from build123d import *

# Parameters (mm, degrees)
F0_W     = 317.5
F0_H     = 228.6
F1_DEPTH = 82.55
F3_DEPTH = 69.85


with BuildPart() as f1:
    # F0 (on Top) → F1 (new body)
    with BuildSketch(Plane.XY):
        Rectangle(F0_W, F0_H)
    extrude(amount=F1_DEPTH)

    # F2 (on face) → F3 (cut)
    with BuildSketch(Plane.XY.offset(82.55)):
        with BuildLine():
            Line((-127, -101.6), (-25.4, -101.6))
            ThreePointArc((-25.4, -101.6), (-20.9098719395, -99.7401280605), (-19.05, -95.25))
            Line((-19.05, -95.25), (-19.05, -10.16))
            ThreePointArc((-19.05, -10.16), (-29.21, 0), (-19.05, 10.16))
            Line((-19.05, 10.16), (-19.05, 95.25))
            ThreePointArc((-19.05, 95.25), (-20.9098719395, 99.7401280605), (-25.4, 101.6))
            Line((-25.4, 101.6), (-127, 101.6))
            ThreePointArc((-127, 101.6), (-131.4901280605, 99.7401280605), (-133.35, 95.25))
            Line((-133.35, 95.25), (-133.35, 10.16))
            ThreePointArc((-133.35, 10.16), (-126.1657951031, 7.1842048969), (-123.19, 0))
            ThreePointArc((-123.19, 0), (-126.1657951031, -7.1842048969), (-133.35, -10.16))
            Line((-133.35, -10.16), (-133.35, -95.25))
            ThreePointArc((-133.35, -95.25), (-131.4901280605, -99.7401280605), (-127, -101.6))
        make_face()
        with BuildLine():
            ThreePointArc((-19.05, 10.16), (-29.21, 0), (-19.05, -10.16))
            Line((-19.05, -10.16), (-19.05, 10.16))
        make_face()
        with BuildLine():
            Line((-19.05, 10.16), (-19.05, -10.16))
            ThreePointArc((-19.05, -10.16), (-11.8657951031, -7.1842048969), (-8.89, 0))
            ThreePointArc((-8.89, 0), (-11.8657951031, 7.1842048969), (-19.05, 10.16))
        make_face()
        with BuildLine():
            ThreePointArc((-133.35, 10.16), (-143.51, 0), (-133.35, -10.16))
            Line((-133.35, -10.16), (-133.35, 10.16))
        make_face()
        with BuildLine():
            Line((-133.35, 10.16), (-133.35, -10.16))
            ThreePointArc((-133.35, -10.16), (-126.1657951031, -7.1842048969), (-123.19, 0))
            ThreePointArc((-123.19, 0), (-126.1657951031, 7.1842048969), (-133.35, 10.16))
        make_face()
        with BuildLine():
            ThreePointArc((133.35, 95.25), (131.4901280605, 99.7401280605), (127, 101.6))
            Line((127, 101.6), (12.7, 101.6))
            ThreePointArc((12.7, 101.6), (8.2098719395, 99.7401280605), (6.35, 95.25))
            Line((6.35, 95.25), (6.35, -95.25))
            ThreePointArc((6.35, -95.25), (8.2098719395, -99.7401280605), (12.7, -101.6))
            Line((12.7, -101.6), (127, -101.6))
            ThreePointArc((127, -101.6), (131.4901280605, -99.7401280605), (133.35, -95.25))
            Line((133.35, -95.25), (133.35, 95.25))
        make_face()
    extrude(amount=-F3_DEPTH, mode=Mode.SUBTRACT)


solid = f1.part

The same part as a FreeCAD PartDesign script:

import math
import FreeCAD as App
import Part
import Sketcher
from FreeCAD import Vector
Q = App.Units.Quantity

doc = App.newDocument("Part")
body = doc.addObject("PartDesign::Body", "Body")

# Sketch on XY plane
sketch1 = doc.addObject("Sketcher::SketchObject", "Sketch")
body.addObject(sketch1)
sketch1.AttachmentSupport = (doc.XY_Plane, [""])
sketch1.MapMode = "FlatFace"
sketch1.addGeometry(Part.LineSegment(Vector(-158.75, 114.3, 0), Vector(-158.75, -114.3, 0)), False)
sketch1.addGeometry(Part.LineSegment(Vector(-158.75, -114.3, 0), Vector(158.75, -114.3, 0)), False)
sketch1.addGeometry(Part.LineSegment(Vector(158.75, -114.3, 0), Vector(158.75, 114.3, 0)), False)
sketch1.addGeometry(Part.LineSegment(Vector(158.75, 114.3, 0), Vector(-158.75, 114.3, 0)), False)
sketch1.addConstraint(Sketcher.Constraint("Coincident", 0, 2, 1, 1))
sketch1.addConstraint(Sketcher.Constraint("Coincident", 1, 2, 2, 1))
sketch1.addConstraint(Sketcher.Constraint("Coincident", 2, 2, 3, 1))
sketch1.addConstraint(Sketcher.Constraint("Coincident", 3, 2, 0, 1))
sketch1.addConstraint(Sketcher.Constraint("Vertical", 0))
sketch1.addConstraint(Sketcher.Constraint("Horizontal", 1))
sketch1.addConstraint(Sketcher.Constraint("Vertical", 2))
sketch1.addConstraint(Sketcher.Constraint("Horizontal", 3))
sketch1.addConstraint(Sketcher.Constraint("Symmetric", 0, 2, 2, 2, -1, 1))
sketch1.addConstraint(Sketcher.Constraint("DistanceY", 0, 2, 0, 1, Q("9 in")))
sketch1.addConstraint(Sketcher.Constraint("DistanceX", 1, 1, 1, 2, Q("12.5 in")))
pad1 = doc.addObject("PartDesign::Pad", "Pad")
body.addObject(pad1)
pad1.Profile = sketch1
pad1.Length = Q("3.25 in")

# Sketch on XY plane
sketch2 = doc.addObject("Sketcher::SketchObject", "Sketch001")
body.addObject(sketch2)
sketch2.AttachmentSupport = (doc.XY_Plane, [""])
sketch2.MapMode = "FlatFace"
sketch2.AttachmentOffset = App.Placement(Vector(0, 0, 3.25 * 25.4), App.Rotation())
sketch2.addGeometry(Part.LineSegment(Vector(-127, -101.6, 0), Vector(-25.4, -101.6, 0)), False)
sketch2.addGeometry(Part.ArcOfCircle(Part.Circle(Vector(-25.4, -95.25, 0), Vector(0, 0, 1), 6.35), math.radians(-90), math.radians(0)), False)
sketch2.addGeometry(Part.LineSegment(Vector(-19.05, -95.25, 0), Vector(-19.05, -10.16, 0)), False)
sketch2.addGeometry(Part.ArcOfCircle(Part.Circle(Vector(-19.05, 0, 0), Vector(0, 0, 1), 10.16), math.radians(-90), math.radians(0)), False)
sketch2.addGeometry(Part.ArcOfCircle(Part.Circle(Vector(-19.05, 0, 0), Vector(0, 0, 1), 10.16), math.radians(0), math.radians(90)), False)
sketch2.addGeometry(Part.LineSegment(Vector(-19.05, 10.16, 0), Vector(-19.05, 95.25, 0)), False)
sketch2.addGeometry(Part.ArcOfCircle(Part.Circle(Vector(-25.4, 95.25, 0), Vector(0, 0, 1), 6.35), math.radians(0), math.radians(90)), False)
sketch2.addGeometry(Part.LineSegment(Vector(-25.4, 101.6, 0), Vector(-127, 101.6, 0)), False)
sketch2.addGeometry(Part.ArcOfCircle(Part.Circle(Vector(-127, 95.25, 0), Vector(0, 0, 1), 6.35), math.radians(90), math.radians(180)), False)
sketch2.addGeometry(Part.LineSegment(Vector(-133.35, 95.25, 0), Vector(-133.35, 10.16, 0)), False)
sketch2.addGeometry(Part.ArcOfCircle(Part.Circle(Vector(-133.35, 0, 0), Vector(0, 0, 1), 10.16), math.radians(90), math.radians(270)), False)
sketch2.addGeometry(Part.LineSegment(Vector(-133.35, -10.16, 0), Vector(-133.35, -95.25, 0)), False)
sketch2.addGeometry(Part.ArcOfCircle(Part.Circle(Vector(-127, -95.25, 0), Vector(0, 0, 1), 6.35), math.radians(180), math.radians(270)), False)
sketch2.addGeometry(Part.ArcOfCircle(Part.Circle(Vector(127, 95.25, 0), Vector(0, 0, 1), 6.35), math.radians(0), math.radians(90)), False)
sketch2.addGeometry(Part.LineSegment(Vector(127, 101.6, 0), Vector(12.7, 101.6, 0)), False)
sketch2.addGeometry(Part.ArcOfCircle(Part.Circle(Vector(12.7, 95.25, 0), Vector(0, 0, 1), 6.35), math.radians(90), math.radians(180)), False)
sketch2.addGeometry(Part.LineSegment(Vector(6.35, 95.25, 0), Vector(6.35, -95.25, 0)), False)
sketch2.addGeometry(Part.ArcOfCircle(Part.Circle(Vector(12.7, -95.25, 0), Vector(0, 0, 1), 6.35), math.radians(180), math.radians(270)), False)
sketch2.addGeometry(Part.LineSegment(Vector(12.7, -101.6, 0), Vector(127, -101.6, 0)), False)
sketch2.addGeometry(Part.ArcOfCircle(Part.Circle(Vector(127, -95.25, 0), Vector(0, 0, 1), 6.35), math.radians(-90), math.radians(0)), False)
sketch2.addGeometry(Part.LineSegment(Vector(133.35, -95.25, 0), Vector(133.35, 95.25, 0)), False)
sketch2.addConstraint(Sketcher.Constraint("Tangent", 0, 2, 1, 1))
sketch2.addConstraint(Sketcher.Constraint("Tangent", 1, 2, 2, 1))
sketch2.addConstraint(Sketcher.Constraint("Coincident", 2, 2, 3, 1))
sketch2.addConstraint(Sketcher.Constraint("Tangent", 3, 2, 4, 1))
sketch2.addConstraint(Sketcher.Constraint("Coincident", 4, 2, 5, 1))
sketch2.addConstraint(Sketcher.Constraint("Tangent", 5, 2, 6, 1))
sketch2.addConstraint(Sketcher.Constraint("Tangent", 6, 2, 7, 1))
sketch2.addConstraint(Sketcher.Constraint("Tangent", 7, 2, 8, 1))
sketch2.addConstraint(Sketcher.Constraint("Tangent", 8, 2, 9, 1))
sketch2.addConstraint(Sketcher.Constraint("Coincident", 9, 2, 10, 1))
sketch2.addConstraint(Sketcher.Constraint("Coincident", 10, 2, 11, 1))
sketch2.addConstraint(Sketcher.Constraint("Tangent", 11, 2, 12, 1))
sketch2.addConstraint(Sketcher.Constraint("Tangent", 12, 2, 0, 1))
sketch2.addConstraint(Sketcher.Constraint("Tangent", 13, 2, 14, 1))
sketch2.addConstraint(Sketcher.Constraint("Tangent", 14, 2, 15, 1))
sketch2.addConstraint(Sketcher.Constraint("Tangent", 15, 2, 16, 1))
sketch2.addConstraint(Sketcher.Constraint("Tangent", 16, 2, 17, 1))
sketch2.addConstraint(Sketcher.Constraint("Tangent", 17, 2, 18, 1))
sketch2.addConstraint(Sketcher.Constraint("Tangent", 18, 2, 19, 1))
sketch2.addConstraint(Sketcher.Constraint("Tangent", 19, 2, 20, 1))
sketch2.addConstraint(Sketcher.Constraint("Tangent", 20, 2, 13, 1))
sketch2.addConstraint(Sketcher.Constraint("Horizontal", 0))
sketch2.addConstraint(Sketcher.Constraint("Vertical", 2))
sketch2.addConstraint(Sketcher.Constraint("Vertical", 5))
sketch2.addConstraint(Sketcher.Constraint("Horizontal", 7))
sketch2.addConstraint(Sketcher.Constraint("Vertical", 9))
sketch2.addConstraint(Sketcher.Constraint("Vertical", 11))
sketch2.addConstraint(Sketcher.Constraint("Horizontal", 14))
sketch2.addConstraint(Sketcher.Constraint("Vertical", 16))
sketch2.addConstraint(Sketcher.Constraint("Horizontal", 18))
sketch2.addConstraint(Sketcher.Constraint("Vertical", 20))
sketch2.addConstraint(Sketcher.Constraint("Equal", 3, 4))
sketch2.addConstraint(Sketcher.Constraint("Equal", 1, 6))
sketch2.addConstraint(Sketcher.Constraint("Equal", 6, 8))
sketch2.addConstraint(Sketcher.Constraint("Equal", 4, 10))
sketch2.addConstraint(Sketcher.Constraint("Equal", 8, 12))
sketch2.addConstraint(Sketcher.Constraint("Equal", 12, 13))
sketch2.addConstraint(Sketcher.Constraint("Equal", 13, 15))
sketch2.addConstraint(Sketcher.Constraint("Equal", 15, 17))
sketch2.addConstraint(Sketcher.Constraint("Equal", 17, 19))
sketch2.addConstraint(Sketcher.Constraint("Symmetric", 12, 3, 13, 3, -1, 1))
sketch2.addConstraint(Sketcher.Constraint("Symmetric", 8, 3, 19, 3, -1, 1))
sketch2.addConstraint(Sketcher.Constraint("Symmetric", 1, 3, 6, 3, -1))
sketch2.addConstraint(Sketcher.Constraint("PointOnObject", 3, 3, -1))
sketch2.addConstraint(Sketcher.Constraint("PointOnObject", 10, 3, -1))
sketch2.addConstraint(Sketcher.Constraint("PointOnObject", 3, 2, -1))
sketch2.addConstraint(Sketcher.Constraint("Vertical", 4, 3, 1, 2))
sketch2.addConstraint(Sketcher.Constraint("Vertical", 10, 3, 8, 2))
sketch2.addConstraint(Sketcher.Constraint("Radius", 3, Q("0.4 in")))
sketch2.addConstraint(Sketcher.Constraint("DistanceX", 0, 1, 0, 2, Q("4 in")))
sketch2.addConstraint(Sketcher.Constraint("Radius", 1, Q("0.25 in")))
sketch2.addConstraint(Sketcher.Constraint("DistanceX", 14, 2, 14, 1, Q("4.5 in")))
sketch2.addConstraint(Sketcher.Constraint("DistanceY", 16, 2, 16, 1, Q("7.5 in")))
sketch2.addConstraint(Sketcher.Constraint("DistanceX", 1, 3, -1, 1, Q("1 in")))
pocket1 = doc.addObject("PartDesign::Pocket", "Pocket")
body.addObject(pocket1)
pocket1.Profile = sketch2
pocket1.Length = Q("2.75 in")

doc.recompute()
